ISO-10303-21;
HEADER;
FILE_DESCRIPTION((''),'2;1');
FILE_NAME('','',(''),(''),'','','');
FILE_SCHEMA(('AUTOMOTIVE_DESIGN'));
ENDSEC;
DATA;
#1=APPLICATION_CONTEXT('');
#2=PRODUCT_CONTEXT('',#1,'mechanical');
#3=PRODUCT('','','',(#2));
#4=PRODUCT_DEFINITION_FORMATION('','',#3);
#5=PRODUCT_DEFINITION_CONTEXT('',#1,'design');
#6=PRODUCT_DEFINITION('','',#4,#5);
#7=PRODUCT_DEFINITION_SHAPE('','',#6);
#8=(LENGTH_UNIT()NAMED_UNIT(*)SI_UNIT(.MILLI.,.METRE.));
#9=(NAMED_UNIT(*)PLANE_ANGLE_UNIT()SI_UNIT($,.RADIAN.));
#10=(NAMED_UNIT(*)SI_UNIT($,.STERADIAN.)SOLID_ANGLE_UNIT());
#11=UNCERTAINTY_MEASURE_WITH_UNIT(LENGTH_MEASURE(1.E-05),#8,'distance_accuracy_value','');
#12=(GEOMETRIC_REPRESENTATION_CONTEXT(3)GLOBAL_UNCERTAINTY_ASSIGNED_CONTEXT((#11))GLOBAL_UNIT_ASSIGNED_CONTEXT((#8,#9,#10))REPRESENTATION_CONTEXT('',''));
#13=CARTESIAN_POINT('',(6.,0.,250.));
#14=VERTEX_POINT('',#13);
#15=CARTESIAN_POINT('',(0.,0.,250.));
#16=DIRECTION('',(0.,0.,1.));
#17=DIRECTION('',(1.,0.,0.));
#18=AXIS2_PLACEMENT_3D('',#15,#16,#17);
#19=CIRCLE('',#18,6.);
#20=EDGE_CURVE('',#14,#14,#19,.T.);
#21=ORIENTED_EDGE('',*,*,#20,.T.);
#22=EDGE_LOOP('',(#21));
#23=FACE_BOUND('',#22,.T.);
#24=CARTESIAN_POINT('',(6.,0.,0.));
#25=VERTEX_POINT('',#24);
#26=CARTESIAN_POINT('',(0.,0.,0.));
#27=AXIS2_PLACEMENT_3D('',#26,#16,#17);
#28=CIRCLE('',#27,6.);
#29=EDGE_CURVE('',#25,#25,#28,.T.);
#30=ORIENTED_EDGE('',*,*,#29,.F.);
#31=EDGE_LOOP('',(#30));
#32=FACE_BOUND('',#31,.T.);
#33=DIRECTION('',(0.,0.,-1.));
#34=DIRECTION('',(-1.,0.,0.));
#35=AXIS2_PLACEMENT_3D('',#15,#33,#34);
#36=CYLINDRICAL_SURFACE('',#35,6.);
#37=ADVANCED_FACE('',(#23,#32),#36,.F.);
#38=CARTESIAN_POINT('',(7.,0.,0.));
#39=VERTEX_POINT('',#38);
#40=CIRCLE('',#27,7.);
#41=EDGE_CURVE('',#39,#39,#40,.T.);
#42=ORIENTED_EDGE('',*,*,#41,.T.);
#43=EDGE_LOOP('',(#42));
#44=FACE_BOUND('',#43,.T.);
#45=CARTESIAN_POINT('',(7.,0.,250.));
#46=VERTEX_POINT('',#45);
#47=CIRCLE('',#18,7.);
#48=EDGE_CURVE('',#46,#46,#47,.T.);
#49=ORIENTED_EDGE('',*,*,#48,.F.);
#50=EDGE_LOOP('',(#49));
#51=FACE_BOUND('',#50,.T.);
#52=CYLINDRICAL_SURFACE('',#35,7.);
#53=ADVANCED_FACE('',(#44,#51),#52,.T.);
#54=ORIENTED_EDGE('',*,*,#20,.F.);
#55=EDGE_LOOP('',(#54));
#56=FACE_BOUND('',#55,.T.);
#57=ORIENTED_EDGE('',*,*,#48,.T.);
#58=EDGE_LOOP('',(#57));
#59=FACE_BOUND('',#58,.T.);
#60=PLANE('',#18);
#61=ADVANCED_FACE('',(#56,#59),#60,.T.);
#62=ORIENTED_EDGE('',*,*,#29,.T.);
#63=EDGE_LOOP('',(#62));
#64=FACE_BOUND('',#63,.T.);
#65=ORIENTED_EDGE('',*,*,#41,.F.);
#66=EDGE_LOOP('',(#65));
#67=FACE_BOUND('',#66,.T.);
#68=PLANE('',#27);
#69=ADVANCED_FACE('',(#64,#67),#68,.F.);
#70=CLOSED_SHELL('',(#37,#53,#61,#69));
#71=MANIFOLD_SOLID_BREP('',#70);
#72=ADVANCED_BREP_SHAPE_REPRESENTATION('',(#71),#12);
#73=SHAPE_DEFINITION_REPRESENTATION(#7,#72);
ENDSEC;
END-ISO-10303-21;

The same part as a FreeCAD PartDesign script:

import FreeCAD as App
import Part
import Sketcher
Q = App.Units.Quantity

doc = App.newDocument("Part")
body = doc.addObject("PartDesign::Body", "Body")

# Sketch on XY plane
sketch1 = doc.addObject("Sketcher::SketchObject", "Sketch")
body.addObject(sketch1)
sketch1.AttachmentSupport = (doc.XY_Plane, [""])
sketch1.MapMode = "FlatFace"
sketch1.addGeometry([
    Part.Circle(App.Vector(0, 0, 0), App.Vector(0, 0, 1), 7),
    Part.Circle(App.Vector(0, 0, 0), App.Vector(0, 0, 1), 6),
], False)
sketch1.addConstraint([
    Sketcher.Constraint("Coincident", 0, 3, -1, 1),
    Sketcher.Constraint("Coincident", 1, 3, -1, 1),
    Sketcher.Constraint("Diameter", 0, Q("14 mm")),
    Sketcher.Constraint("Diameter", 1, Q("12 mm")),
])
pad1 = doc.addObject("PartDesign::Pad", "Pad")
body.addObject(pad1)
pad1.Profile = sketch1
pad1.Length = 250

doc.recompute()
